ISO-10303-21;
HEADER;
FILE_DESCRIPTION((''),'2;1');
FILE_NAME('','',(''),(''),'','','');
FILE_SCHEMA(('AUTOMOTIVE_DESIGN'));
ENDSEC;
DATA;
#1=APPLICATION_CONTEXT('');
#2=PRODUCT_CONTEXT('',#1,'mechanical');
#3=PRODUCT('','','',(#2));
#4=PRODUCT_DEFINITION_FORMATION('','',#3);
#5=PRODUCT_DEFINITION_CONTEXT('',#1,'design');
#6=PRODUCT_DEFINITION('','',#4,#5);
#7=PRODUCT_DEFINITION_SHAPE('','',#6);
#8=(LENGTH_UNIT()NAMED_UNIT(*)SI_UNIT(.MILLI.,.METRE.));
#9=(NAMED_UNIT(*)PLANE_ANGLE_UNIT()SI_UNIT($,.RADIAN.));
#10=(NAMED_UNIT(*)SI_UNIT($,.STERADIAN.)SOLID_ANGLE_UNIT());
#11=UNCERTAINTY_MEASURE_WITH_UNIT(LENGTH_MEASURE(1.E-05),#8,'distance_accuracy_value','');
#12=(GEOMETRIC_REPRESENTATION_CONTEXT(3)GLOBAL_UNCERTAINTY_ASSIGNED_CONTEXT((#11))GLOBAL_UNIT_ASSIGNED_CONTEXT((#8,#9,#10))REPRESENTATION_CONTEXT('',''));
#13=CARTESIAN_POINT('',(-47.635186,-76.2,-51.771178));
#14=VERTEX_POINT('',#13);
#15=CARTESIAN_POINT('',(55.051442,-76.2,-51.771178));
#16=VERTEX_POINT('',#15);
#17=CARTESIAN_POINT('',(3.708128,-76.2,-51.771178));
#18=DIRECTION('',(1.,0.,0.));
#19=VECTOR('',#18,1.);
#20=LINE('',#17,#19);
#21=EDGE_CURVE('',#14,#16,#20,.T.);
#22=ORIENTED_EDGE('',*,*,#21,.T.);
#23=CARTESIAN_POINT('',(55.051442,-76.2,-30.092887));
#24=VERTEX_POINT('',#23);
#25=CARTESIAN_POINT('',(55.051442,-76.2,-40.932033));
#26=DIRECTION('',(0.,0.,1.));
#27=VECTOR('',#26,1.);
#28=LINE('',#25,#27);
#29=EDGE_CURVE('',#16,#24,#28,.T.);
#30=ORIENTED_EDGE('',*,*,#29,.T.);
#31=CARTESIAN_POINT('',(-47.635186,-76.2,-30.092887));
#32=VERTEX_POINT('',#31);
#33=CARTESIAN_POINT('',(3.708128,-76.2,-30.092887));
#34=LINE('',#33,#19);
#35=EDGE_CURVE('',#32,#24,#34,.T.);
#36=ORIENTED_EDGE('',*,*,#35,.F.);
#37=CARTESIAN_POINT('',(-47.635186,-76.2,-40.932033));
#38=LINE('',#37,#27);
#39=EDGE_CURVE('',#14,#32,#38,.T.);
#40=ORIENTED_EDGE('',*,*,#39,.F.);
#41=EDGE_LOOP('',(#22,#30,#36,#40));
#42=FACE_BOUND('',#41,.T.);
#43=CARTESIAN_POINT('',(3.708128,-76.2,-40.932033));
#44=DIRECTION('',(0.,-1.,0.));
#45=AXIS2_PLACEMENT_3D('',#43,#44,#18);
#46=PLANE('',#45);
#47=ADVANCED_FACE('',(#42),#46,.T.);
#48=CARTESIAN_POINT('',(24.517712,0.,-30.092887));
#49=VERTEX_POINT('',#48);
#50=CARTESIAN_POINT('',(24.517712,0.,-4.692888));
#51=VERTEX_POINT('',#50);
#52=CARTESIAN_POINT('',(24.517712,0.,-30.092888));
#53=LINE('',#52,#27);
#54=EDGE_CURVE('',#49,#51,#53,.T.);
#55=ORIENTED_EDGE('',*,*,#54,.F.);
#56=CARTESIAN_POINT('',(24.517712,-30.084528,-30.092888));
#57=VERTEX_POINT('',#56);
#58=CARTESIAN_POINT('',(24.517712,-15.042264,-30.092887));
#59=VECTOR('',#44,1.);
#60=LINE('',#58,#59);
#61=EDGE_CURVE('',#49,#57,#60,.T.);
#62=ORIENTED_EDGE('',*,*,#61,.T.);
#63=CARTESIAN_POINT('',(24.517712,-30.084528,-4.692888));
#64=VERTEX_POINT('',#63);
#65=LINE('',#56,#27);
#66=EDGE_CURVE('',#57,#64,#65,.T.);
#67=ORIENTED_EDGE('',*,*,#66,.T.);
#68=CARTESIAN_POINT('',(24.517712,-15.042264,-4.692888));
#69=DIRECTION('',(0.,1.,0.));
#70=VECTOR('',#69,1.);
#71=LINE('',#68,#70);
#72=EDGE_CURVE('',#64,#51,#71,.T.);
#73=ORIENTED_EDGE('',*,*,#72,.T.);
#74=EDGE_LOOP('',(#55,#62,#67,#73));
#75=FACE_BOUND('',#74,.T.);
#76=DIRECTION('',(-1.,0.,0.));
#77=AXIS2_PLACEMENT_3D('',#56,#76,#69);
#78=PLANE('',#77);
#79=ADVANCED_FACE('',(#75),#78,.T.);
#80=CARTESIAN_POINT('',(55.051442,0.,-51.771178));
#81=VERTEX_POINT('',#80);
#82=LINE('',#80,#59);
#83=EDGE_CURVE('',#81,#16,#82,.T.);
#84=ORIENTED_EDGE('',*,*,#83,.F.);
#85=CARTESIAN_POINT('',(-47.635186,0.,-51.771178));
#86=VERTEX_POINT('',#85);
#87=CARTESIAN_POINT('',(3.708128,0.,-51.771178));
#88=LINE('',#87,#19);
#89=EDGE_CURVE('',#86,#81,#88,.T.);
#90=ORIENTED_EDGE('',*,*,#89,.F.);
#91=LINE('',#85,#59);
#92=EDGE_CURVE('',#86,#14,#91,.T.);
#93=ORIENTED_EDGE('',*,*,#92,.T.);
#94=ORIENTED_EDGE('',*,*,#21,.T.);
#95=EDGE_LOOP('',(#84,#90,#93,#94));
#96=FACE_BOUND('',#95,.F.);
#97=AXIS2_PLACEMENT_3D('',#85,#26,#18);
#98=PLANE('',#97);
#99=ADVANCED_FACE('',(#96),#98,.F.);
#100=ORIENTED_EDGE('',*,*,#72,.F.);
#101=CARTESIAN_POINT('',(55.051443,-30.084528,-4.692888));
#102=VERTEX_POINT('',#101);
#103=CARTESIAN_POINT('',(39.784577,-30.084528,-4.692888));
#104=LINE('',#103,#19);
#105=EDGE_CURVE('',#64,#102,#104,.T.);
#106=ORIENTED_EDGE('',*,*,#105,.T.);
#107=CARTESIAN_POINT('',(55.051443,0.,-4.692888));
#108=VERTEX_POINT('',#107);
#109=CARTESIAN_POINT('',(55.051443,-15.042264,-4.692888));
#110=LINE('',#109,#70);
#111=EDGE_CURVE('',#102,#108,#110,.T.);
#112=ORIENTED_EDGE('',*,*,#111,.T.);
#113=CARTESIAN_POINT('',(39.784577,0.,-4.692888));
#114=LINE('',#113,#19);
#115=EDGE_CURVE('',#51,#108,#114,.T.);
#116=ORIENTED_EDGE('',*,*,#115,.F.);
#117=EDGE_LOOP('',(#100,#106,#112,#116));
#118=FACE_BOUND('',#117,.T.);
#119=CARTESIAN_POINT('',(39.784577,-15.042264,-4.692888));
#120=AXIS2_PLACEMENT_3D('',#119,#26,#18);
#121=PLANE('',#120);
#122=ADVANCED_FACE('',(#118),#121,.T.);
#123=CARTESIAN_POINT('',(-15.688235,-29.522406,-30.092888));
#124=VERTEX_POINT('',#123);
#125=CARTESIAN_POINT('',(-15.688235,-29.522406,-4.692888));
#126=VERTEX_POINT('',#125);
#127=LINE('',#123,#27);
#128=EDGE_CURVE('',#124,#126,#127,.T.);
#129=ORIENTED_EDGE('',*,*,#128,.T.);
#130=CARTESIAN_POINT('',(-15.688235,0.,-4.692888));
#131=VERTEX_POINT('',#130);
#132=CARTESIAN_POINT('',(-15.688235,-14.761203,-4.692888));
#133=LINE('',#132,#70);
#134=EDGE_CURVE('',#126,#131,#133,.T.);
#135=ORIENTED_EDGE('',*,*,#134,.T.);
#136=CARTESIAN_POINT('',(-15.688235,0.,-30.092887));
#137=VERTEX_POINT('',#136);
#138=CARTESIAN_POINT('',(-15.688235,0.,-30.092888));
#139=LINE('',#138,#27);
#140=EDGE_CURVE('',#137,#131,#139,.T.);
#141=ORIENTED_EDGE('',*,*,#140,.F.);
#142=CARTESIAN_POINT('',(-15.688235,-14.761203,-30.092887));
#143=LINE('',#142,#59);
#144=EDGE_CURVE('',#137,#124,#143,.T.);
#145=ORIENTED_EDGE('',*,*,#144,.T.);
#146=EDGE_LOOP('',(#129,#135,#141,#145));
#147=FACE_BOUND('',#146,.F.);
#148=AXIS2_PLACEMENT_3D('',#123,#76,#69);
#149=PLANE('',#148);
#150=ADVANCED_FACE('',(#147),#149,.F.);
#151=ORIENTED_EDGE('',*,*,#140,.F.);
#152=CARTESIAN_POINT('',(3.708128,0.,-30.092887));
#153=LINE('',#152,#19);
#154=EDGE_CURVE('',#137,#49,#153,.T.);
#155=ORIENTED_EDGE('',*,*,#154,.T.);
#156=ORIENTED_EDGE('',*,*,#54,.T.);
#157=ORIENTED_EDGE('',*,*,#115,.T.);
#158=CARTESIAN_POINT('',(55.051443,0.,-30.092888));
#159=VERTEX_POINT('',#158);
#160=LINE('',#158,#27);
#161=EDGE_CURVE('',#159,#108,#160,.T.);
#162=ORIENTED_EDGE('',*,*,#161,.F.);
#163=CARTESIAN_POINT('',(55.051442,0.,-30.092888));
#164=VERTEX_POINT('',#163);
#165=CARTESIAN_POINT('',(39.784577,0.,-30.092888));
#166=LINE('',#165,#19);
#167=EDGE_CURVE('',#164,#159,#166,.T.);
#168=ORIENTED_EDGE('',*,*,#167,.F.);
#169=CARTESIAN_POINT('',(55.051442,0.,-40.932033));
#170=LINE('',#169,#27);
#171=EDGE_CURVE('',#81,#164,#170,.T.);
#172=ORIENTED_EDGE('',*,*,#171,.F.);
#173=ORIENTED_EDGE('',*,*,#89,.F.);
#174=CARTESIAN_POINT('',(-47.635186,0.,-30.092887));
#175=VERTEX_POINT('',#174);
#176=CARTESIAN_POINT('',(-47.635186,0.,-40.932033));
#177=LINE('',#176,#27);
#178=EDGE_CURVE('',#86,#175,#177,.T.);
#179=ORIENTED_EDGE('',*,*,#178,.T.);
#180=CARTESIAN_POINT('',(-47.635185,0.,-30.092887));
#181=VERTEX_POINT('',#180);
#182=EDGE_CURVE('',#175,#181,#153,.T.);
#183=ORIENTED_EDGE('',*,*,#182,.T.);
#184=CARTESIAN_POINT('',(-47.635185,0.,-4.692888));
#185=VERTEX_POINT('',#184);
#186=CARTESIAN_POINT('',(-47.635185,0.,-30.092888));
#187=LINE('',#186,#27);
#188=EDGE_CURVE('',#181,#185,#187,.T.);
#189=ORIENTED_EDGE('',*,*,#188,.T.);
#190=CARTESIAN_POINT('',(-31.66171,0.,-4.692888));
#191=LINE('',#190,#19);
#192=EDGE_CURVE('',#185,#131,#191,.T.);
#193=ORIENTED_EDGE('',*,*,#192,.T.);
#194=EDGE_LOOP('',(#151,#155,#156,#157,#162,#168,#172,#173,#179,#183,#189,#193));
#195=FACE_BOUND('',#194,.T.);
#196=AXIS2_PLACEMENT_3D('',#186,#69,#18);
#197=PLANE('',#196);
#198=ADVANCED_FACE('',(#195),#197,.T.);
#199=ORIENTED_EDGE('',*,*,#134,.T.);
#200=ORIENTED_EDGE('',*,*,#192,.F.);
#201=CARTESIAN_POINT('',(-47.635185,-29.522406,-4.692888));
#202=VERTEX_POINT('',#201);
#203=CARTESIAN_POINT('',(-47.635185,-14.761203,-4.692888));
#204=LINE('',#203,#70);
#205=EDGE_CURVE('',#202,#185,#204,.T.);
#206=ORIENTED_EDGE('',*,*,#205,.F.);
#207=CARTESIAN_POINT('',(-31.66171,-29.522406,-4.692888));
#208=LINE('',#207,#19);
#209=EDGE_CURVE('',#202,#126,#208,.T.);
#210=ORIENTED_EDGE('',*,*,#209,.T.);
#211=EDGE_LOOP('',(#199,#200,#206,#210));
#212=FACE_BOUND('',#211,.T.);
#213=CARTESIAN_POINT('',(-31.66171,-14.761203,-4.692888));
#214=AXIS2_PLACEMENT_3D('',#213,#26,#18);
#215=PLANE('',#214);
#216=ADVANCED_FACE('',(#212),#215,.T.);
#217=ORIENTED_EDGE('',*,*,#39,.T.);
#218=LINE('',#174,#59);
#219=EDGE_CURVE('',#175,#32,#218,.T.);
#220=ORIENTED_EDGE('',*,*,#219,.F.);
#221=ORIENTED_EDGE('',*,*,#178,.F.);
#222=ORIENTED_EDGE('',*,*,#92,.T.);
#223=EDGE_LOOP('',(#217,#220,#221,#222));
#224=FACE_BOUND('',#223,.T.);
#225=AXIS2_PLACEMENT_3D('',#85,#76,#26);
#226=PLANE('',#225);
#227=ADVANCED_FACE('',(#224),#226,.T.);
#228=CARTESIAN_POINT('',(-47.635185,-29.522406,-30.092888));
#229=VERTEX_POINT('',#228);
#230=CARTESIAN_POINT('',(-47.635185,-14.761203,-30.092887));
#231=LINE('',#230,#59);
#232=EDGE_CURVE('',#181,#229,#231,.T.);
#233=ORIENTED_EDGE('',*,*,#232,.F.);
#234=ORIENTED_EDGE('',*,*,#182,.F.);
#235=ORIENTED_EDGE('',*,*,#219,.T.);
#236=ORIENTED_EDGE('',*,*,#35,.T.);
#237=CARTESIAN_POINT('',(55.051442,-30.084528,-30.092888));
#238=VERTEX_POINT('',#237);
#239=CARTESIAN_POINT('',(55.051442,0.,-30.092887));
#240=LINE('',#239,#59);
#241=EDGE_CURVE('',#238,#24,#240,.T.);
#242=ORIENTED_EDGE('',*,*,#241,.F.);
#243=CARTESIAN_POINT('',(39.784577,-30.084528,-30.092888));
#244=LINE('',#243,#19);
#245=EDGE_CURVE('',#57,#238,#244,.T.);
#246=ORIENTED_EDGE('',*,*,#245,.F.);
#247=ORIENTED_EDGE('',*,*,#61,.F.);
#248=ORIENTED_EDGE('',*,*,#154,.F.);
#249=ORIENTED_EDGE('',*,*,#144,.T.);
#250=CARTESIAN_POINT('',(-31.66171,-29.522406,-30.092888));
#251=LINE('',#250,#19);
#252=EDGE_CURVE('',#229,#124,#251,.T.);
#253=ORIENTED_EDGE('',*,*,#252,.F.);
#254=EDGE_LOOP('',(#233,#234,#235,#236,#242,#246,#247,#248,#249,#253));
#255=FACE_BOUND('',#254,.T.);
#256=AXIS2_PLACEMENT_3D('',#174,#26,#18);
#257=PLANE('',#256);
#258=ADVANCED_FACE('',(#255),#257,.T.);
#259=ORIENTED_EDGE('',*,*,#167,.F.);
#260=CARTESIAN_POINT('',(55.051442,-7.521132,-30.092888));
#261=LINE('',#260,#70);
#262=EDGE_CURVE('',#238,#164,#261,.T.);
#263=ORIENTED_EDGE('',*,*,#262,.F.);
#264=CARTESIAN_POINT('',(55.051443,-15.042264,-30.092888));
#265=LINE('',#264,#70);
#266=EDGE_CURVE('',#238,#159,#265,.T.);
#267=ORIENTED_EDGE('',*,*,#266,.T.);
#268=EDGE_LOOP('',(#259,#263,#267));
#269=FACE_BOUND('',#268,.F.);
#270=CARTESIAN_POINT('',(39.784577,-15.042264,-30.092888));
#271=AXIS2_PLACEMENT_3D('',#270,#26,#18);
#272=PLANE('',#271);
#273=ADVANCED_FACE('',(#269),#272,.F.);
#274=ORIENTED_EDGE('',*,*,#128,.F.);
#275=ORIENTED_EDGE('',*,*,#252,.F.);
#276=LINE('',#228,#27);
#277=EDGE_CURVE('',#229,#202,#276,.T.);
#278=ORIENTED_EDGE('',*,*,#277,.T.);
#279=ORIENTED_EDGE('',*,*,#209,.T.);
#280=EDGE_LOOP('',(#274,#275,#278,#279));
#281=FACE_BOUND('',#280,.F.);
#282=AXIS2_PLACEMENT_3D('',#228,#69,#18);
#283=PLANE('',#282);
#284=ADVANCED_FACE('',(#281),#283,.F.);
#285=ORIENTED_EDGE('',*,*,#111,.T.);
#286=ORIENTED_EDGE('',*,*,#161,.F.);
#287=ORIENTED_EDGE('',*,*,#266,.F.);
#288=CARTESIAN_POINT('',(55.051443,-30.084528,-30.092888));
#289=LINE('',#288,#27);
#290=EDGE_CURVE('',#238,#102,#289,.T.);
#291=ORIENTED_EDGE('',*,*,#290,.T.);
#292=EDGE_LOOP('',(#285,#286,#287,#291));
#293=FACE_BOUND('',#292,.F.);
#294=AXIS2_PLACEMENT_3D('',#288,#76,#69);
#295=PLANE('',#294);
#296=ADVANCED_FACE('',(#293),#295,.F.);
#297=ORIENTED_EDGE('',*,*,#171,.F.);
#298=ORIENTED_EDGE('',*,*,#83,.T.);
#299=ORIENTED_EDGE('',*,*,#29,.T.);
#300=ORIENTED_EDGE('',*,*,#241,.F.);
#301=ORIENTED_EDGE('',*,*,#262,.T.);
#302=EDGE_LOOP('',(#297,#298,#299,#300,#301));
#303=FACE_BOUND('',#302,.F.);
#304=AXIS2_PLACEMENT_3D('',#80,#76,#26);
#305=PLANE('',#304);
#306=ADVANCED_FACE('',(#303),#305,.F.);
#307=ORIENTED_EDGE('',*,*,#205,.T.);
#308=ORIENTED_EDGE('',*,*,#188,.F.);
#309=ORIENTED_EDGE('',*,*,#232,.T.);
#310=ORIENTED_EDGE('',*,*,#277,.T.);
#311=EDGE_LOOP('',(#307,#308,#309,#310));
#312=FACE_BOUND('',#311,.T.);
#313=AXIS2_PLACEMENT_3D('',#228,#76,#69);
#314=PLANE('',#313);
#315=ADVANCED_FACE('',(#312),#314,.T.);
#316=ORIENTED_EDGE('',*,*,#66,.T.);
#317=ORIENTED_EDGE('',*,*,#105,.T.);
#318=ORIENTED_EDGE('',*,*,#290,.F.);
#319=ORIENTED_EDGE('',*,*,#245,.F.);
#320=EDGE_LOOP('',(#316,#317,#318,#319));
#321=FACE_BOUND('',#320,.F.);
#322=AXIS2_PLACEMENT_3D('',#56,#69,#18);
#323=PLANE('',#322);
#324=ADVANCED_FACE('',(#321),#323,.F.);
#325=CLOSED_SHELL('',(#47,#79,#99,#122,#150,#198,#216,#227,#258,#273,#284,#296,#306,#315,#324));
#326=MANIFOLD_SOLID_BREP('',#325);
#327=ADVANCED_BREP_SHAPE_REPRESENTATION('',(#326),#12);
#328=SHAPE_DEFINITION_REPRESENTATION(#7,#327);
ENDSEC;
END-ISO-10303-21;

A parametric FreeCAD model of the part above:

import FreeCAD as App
import Part
import Sketcher

doc = App.newDocument("Part")
params = doc.addObject("Spreadsheet::Sheet", "Params")
for row, (alias, value) in enumerate([
    ("pad1_length", "3 in"),
    ("pad2_length", "1 in"),
    ("pad3_length", "1 in"),
], start=1):
    params.set(f"A{row}", alias)
    params.set(f"B{row}", "=" + value)
    params.setAlias(f"B{row}", alias)

body = doc.addObject("PartDesign::Body", "Body")

# Sketch on XZ plane
sketch1 = body.newObject("Sketcher::SketchObject", "Sketch")
sketch1.AttachmentSupport = (doc.getObject("XZ_Plane"), [""])
sketch1.MapMode = "FlatFace"
sketch1.addGeometry([
    Part.LineSegment(App.Vector(-47.635186, -30.092887, 0), App.Vector(-47.635186, -51.771178, 0)),
    Part.LineSegment(App.Vector(-47.635186, -51.771178, 0), App.Vector(55.051442, -51.771178, 0)),
    Part.LineSegment(App.Vector(55.051442, -51.771178, 0), App.Vector(55.051442, -30.092887, 0)),
    Part.LineSegment(App.Vector(55.051442, -30.092887, 0), App.Vector(-47.635186, -30.092887, 0)),
], False)
sketch1.addConstraint([
    Sketcher.Constraint("Coincident", 0, 2, 1, 1),
    Sketcher.Constraint("Coincident", 1, 2, 2, 1),
    Sketcher.Constraint("Coincident", 2, 2, 3, 1),
    Sketcher.Constraint("Coincident", 3, 2, 0, 1),
    Sketcher.Constraint("Vertical", 0),
    Sketcher.Constraint("Horizontal", 1),
    Sketcher.Constraint("Vertical", 2),
    Sketcher.Constraint("Horizontal", 3),
    Sketcher.Constraint("DistanceX", 1, 1, 1, 2, 102.686628),
    Sketcher.Constraint("DistanceY", 0, 2, 0, 1, 21.678291),
    Sketcher.Constraint("DistanceY", 0, 2, -1, 1, 51.771178),
    Sketcher.Constraint("DistanceX", 0, 2, -1, 1, 47.635186),
])
pad1 = body.newObject("PartDesign::Pad", "Pad")
pad1.Profile = sketch1
pad1.setExpression("Length", "Params.pad1_length")

# Sketch on XY plane
sketch2 = body.newObject("Sketcher::SketchObject", "Sketch001")
sketch2.AttachmentSupport = (doc.getObject("XY_Plane"), [""])
sketch2.MapMode = "FlatFace"
sketch2.AttachmentOffset = App.Placement(App.Vector(0, 0, -30.092888), App.Rotation())
sketch2.addGeometry([
    Part.LineSegment(App.Vector(24.517712, 0, 0), App.Vector(24.517712, -30.084528, 0)),
    Part.LineSegment(App.Vector(24.517712, -30.084528, 0), App.Vector(55.051443, -30.084528, 0)),
    Part.LineSegment(App.Vector(55.051443, -30.084528, 0), App.Vector(55.051443, 0, 0)),
    Part.LineSegment(App.Vector(55.051443, 0, 0), App.Vector(24.517712, 0, 0)),
], False)
sketch2.addConstraint([
    Sketcher.Constraint("Coincident", 0, 2, 1, 1),
    Sketcher.Constraint("Coincident", 1, 2, 2, 1),
    Sketcher.Constraint("Coincident", 2, 2, 3, 1),
    Sketcher.Constraint("Coincident", 3, 2, 0, 1),
    Sketcher.Constraint("Vertical", 0),
    Sketcher.Constraint("Horizontal", 1),
    Sketcher.Constraint("Vertical", 2),
    Sketcher.Constraint("Horizontal", 3),
    Sketcher.Constraint("PointOnObject", 2, 2, -1),
    Sketcher.Constraint("DistanceX", 1, 1, 1, 2, 30.533731),
    Sketcher.Constraint("DistanceY", 0, 2, 0, 1, 30.084528),
    Sketcher.Constraint("DistanceX", -1, 1, 0, 2, 24.517712),
])
pad2 = body.newObject("PartDesign::Pad", "Pad001")
pad2.Profile = sketch2
pad2.setExpression("Length", "Params.pad2_length")

# Sketch on XY plane
sketch3 = body.newObject("Sketcher::SketchObject", "Sketch002")
sketch3.AttachmentSupport = (doc.getObject("XY_Plane"), [""])
sketch3.MapMode = "FlatFace"
sketch3.AttachmentOffset = App.Placement(App.Vector(0, 0, -30.092888), App.Rotation())
sketch3.addGeometry([
    Part.LineSegment(App.Vector(-47.635185, 0, 0), App.Vector(-47.635185, -29.522406, 0)),
    Part.LineSegment(App.Vector(-47.635185, -29.522406, 0), App.Vector(-15.688235, -29.522406, 0)),
    Part.LineSegment(App.Vector(-15.688235, -29.522406, 0), App.Vector(-15.688235, 0, 0)),
    Part.LineSegment(App.Vector(-15.688235, 0, 0), App.Vector(-47.635185, 0, 0)),
], False)
sketch3.addConstraint([
    Sketcher.Constraint("Coincident", 0, 2, 1, 1),
    Sketcher.Constraint("Coincident", 1, 2, 2, 1),
    Sketcher.Constraint("Coincident", 2, 2, 3, 1),
    Sketcher.Constraint("Coincident", 3, 2, 0, 1),
    Sketcher.Constraint("Vertical", 0),
    Sketcher.Constraint("Horizontal", 1),
    Sketcher.Constraint("Vertical", 2),
    Sketcher.Constraint("Horizontal", 3),
    Sketcher.Constraint("PointOnObject", 2, 2, -1),
    Sketcher.Constraint("DistanceX", 1, 1, 1, 2, 31.946951),
    Sketcher.Constraint("DistanceY", 0, 2, 0, 1, 29.522406),
    Sketcher.Constraint("DistanceX", 0, 2, -1, 1, 47.635185),
])
pad3 = body.newObject("PartDesign::Pad", "Pad002")
pad3.Profile = sketch3
pad3.setExpression("Length", "Params.pad3_length")

doc.recompute()
